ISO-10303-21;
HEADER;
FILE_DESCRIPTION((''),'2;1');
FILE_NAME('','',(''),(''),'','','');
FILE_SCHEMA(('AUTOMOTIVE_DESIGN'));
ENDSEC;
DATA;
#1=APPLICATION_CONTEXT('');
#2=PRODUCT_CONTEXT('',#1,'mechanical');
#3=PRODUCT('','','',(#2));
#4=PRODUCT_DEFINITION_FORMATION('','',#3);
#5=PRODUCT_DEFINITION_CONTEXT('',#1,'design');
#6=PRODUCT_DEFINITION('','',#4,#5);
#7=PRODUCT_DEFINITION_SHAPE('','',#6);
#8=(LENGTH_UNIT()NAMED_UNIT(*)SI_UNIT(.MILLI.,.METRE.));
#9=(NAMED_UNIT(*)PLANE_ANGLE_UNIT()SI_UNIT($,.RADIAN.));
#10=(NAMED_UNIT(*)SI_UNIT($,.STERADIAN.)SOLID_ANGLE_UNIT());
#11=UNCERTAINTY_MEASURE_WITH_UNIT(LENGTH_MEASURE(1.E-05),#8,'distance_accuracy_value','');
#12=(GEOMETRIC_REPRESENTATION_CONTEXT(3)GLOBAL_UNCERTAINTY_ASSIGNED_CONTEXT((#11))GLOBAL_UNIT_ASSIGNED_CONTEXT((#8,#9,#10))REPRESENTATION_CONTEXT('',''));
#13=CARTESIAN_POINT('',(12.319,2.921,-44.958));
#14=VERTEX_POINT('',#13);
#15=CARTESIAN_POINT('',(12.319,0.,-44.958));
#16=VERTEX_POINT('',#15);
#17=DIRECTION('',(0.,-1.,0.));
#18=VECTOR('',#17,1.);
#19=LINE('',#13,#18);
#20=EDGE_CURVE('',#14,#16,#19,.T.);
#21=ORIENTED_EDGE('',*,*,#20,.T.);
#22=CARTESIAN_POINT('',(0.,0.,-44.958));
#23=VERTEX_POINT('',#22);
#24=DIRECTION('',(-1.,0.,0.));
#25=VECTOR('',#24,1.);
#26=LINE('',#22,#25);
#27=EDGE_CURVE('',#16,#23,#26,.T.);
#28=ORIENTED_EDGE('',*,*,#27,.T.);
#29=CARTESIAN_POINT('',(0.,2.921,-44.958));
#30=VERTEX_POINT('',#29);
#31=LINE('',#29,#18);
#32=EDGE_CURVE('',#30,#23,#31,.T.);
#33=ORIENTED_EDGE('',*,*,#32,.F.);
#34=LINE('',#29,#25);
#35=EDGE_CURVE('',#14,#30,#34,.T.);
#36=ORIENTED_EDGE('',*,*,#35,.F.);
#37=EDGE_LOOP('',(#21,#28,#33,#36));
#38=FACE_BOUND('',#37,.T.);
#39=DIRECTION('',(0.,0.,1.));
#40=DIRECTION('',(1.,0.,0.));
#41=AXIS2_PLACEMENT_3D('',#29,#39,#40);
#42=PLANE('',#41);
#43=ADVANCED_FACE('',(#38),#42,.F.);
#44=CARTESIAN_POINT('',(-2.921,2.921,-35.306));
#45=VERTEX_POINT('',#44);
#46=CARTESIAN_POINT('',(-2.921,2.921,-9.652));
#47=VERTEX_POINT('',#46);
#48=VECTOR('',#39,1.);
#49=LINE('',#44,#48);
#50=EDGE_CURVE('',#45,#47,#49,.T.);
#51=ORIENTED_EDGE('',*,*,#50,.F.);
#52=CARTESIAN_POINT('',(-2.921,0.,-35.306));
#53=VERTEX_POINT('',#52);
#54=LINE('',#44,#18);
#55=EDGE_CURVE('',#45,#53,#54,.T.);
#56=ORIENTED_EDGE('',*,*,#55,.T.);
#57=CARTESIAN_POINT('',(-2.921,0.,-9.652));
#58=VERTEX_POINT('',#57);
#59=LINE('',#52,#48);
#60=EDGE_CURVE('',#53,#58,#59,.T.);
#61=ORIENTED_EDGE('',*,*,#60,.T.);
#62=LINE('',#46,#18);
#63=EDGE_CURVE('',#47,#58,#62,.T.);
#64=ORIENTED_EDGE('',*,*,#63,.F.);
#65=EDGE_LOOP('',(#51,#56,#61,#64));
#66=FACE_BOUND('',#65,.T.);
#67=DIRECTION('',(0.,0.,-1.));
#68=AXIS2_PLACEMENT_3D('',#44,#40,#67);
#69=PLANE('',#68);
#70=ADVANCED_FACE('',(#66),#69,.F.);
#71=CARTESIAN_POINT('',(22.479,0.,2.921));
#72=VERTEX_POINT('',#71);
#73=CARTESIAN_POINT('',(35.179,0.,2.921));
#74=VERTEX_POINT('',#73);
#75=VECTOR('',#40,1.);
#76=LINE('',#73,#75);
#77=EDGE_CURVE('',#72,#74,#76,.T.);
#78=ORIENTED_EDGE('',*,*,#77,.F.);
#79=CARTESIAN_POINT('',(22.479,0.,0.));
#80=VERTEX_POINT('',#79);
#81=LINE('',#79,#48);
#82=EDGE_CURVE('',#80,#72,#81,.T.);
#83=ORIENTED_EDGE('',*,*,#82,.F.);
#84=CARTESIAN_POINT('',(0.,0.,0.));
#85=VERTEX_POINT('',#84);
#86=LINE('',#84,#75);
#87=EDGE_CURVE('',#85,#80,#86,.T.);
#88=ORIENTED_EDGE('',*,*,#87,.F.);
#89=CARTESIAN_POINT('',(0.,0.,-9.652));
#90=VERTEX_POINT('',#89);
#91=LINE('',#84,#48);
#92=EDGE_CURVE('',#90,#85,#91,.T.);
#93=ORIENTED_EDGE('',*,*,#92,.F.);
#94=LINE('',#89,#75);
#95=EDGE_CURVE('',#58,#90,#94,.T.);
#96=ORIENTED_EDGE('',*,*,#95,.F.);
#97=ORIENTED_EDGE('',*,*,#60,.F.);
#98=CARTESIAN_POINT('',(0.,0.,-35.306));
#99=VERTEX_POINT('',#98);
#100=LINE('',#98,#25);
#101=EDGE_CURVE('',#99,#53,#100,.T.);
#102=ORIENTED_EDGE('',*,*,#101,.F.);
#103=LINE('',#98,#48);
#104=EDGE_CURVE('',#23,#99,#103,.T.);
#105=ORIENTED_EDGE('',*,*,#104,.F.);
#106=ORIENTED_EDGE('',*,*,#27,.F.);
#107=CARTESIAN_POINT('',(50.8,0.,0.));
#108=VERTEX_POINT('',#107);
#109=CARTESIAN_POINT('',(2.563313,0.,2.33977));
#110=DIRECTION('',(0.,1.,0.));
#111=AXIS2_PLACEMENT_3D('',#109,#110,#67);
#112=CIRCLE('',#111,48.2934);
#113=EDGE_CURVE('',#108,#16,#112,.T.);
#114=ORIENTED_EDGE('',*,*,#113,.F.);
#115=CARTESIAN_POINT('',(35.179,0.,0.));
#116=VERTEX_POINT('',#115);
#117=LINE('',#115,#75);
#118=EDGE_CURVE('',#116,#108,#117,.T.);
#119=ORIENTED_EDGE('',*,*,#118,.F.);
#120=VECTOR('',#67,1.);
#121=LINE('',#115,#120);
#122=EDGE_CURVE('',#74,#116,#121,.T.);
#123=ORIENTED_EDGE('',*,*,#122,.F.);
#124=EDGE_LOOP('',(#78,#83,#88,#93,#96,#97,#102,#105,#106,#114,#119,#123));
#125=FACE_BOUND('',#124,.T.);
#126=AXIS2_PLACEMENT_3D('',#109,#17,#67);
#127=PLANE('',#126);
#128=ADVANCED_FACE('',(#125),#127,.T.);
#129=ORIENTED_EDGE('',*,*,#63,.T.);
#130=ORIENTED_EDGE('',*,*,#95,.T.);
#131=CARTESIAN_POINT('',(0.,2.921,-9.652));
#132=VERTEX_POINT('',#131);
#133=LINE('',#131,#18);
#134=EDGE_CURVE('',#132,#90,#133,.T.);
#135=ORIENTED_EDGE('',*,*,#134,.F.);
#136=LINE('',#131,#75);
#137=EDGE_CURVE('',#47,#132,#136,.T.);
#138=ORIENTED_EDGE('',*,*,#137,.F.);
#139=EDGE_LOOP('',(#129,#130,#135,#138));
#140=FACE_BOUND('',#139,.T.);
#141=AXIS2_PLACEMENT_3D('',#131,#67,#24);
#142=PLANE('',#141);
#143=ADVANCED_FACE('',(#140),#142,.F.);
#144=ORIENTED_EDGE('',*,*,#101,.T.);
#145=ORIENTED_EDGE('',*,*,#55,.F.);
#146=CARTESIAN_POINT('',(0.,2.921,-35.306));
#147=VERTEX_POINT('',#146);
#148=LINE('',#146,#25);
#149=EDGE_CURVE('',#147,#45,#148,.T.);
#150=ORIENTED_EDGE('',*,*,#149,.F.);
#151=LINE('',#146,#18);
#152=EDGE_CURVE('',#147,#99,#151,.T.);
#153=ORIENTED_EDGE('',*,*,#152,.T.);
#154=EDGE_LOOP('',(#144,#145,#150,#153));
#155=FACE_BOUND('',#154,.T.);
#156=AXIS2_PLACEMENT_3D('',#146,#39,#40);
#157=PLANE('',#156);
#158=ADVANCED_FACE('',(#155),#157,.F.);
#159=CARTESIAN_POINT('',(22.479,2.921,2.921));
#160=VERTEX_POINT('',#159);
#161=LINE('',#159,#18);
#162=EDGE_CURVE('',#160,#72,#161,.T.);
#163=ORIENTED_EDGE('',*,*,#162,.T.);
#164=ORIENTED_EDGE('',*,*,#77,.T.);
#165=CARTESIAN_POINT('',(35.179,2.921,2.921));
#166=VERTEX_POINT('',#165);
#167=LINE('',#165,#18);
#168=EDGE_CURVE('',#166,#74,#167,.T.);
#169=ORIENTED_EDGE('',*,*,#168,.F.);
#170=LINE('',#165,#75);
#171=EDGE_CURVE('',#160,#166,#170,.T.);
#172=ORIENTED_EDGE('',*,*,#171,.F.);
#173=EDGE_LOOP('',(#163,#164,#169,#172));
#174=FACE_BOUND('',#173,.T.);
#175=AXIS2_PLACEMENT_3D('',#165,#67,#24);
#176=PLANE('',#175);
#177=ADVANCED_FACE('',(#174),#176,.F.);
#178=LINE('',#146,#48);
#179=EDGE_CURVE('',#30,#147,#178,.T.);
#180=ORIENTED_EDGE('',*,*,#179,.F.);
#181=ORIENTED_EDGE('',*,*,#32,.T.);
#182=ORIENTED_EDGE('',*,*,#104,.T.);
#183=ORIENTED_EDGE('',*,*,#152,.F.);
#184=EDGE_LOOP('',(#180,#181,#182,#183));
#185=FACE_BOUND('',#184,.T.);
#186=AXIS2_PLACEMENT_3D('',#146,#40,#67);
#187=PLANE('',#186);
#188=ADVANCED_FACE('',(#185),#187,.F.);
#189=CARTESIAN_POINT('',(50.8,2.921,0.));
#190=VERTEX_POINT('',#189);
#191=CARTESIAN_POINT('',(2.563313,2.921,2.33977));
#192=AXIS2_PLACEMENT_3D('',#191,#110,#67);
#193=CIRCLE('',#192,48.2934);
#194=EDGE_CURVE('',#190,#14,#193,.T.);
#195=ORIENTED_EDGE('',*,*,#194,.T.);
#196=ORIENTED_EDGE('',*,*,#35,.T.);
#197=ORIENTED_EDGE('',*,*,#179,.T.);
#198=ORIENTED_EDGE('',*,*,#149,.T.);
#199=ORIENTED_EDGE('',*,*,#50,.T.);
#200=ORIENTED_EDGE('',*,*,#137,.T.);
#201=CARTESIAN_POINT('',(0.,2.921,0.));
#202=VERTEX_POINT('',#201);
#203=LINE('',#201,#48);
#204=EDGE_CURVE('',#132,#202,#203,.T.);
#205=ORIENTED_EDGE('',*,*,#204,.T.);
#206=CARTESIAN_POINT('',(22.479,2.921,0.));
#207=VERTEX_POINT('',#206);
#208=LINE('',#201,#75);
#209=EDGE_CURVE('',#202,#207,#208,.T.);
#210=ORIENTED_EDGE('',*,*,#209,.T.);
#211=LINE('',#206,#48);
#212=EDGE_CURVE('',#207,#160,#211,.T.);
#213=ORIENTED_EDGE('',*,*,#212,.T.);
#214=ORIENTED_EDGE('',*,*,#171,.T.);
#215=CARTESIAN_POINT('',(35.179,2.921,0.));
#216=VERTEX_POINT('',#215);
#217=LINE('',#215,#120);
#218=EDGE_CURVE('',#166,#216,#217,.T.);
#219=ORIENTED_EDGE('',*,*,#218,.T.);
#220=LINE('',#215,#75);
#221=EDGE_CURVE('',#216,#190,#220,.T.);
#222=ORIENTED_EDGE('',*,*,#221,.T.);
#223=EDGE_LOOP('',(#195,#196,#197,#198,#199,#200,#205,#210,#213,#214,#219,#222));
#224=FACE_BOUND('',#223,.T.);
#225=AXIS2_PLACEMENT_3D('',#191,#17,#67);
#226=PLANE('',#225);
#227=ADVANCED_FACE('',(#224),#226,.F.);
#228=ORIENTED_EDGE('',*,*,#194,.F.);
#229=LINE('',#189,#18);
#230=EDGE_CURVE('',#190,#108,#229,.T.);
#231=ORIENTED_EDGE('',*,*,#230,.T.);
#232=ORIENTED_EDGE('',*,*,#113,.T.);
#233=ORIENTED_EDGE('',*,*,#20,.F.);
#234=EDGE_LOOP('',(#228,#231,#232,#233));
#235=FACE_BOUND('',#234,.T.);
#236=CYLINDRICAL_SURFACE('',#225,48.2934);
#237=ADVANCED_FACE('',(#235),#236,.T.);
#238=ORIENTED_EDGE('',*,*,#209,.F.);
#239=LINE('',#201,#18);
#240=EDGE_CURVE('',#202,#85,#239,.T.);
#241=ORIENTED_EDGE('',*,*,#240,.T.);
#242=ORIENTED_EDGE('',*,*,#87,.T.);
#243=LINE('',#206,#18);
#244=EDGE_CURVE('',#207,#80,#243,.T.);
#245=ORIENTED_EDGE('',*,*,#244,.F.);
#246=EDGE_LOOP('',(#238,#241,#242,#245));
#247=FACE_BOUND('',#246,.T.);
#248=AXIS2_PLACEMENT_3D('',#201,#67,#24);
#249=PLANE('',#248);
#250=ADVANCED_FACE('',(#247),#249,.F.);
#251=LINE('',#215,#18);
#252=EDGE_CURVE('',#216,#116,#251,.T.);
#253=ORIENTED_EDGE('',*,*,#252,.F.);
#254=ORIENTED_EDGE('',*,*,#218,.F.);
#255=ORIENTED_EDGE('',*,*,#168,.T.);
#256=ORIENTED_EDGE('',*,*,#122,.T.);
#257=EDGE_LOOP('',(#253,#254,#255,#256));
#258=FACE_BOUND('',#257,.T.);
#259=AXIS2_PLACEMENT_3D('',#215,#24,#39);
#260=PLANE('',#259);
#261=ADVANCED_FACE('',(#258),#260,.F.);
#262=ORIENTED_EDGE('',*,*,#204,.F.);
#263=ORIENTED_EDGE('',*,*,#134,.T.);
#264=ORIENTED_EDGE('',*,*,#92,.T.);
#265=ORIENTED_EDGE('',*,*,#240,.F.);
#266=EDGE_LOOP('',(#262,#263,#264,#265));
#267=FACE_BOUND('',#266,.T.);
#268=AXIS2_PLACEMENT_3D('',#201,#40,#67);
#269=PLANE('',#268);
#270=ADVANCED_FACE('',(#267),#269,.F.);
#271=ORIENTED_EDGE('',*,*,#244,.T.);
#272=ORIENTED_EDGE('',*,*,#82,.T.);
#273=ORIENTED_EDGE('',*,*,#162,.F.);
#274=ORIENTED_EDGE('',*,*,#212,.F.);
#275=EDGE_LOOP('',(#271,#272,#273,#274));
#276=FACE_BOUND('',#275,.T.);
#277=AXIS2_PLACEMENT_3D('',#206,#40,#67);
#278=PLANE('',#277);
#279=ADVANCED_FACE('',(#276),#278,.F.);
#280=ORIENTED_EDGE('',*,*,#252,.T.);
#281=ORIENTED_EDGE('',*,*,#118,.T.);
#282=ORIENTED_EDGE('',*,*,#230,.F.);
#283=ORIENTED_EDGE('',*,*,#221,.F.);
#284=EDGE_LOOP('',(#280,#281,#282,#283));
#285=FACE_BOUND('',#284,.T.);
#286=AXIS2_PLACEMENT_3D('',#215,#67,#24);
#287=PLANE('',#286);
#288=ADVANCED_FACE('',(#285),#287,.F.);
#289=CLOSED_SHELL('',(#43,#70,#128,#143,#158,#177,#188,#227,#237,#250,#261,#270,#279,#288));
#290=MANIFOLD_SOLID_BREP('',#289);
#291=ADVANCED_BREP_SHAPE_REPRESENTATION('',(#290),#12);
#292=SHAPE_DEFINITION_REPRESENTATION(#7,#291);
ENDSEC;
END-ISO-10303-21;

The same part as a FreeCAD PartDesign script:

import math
import FreeCAD as App
import Part
import Sketcher

V = App.Vector
Q = App.Units.Quantity

doc = App.newDocument("Part")
body = doc.addObject("PartDesign::Body", "Body")

# Sketch on XZ plane
sketch1 = body.newObject("Sketcher::SketchObject", "Sketch")
sketch1.AttachmentSupport = (doc.getObject("XZ_Plane"), [""])
sketch1.MapMode = "FlatFace"
sketch1.addGeometry([
    Part.LineSegment(V(35.2, 0, 0), V(50.8, 0, 0)),  # 0
    Part.ArcOfCircle(Part.Circle(V(2.6, 2.3, 0), V(0, 0, 1), 48.3), math.radians(-78), math.radians(-3)),  # 1
    Part.LineSegment(V(12.3, -45, 0), V(0, -45, 0)),  # 2
    Part.LineSegment(V(0, -45, 0), V(0, -35.3, 0)),  # 3
    Part.LineSegment(V(0, -35.3, 0), V(-2.9, -35.3, 0)),  # 4
    Part.LineSegment(V(-2.9, -35.3, 0), V(-2.9, -9.7, 0)),  # 5
    Part.LineSegment(V(-2.9, -9.7, 0), V(0, -9.7, 0)),  # 6
    Part.LineSegment(V(0, -9.7, 0), V(0, 0, 0)),  # 7
    Part.LineSegment(V(0, 0, 0), V(22.5, 0, 0)),  # 8
    Part.LineSegment(V(22.5, 0, 0), V(22.5, 2.9, 0)),  # 9
    Part.LineSegment(V(22.5, 2.9, 0), V(35.2, 2.9, 0)),  # 10
    Part.LineSegment(V(35.2, 2.9, 0), V(35.2, 0, 0)),  # 11
], False)
sketch1.addConstraint([
    Sketcher.Constraint("Coincident", 0, 2, 1, 2),
    Sketcher.Constraint("Coincident", 1, 1, 2, 1),
    Sketcher.Constraint("Coincident", 2, 2, 3, 1),
    Sketcher.Constraint("Coincident", 3, 2, 4, 1),
    Sketcher.Constraint("Coincident", 4, 2, 5, 1),
    Sketcher.Constraint("Coincident", 5, 2, 6, 1),
    Sketcher.Constraint("Coincident", 6, 2, 7, 1),
    Sketcher.Constraint("Coincident", 7, 2, 8, 1),
    Sketcher.Constraint("Coincident", 8, 2, 9, 1),
    Sketcher.Constraint("Coincident", 9, 2, 10, 1),
    Sketcher.Constraint("Coincident", 10, 2, 11, 1),
    Sketcher.Constraint("Coincident", 11, 2, 0, 1),
    Sketcher.Constraint("Horizontal", 0),
    Sketcher.Constraint("Horizontal", 2),
    Sketcher.Constraint("Vertical", 3),
    Sketcher.Constraint("Horizontal", 4),
    Sketcher.Constraint("Vertical", 5),
    Sketcher.Constraint("Horizontal", 6),
    Sketcher.Constraint("Vertical", 7),
    Sketcher.Constraint("Horizontal", 8),
    Sketcher.Constraint("Vertical", 9),
    Sketcher.Constraint("Horizontal", 10),
    Sketcher.Constraint("Vertical", 11),
    Sketcher.Constraint("Coincident", 7, 2, -1, 1),
    Sketcher.Constraint("PointOnObject", 0, 2, -1),
    Sketcher.Constraint("PointOnObject", 2, 2, -2),
    Sketcher.Constraint("Equal", 3, 7),
    Sketcher.Constraint("Equal", 6, 9),
    Sketcher.Constraint("DistanceX", 10, 1, 10, 2, Q("0.5 in")),
    Sketcher.Constraint("DistanceX", -1, 1, 0, 2, Q("2 in")),
    Sketcher.Constraint("DistanceX", 5, 2, 8, 2, Q("1 in")),
    Sketcher.Constraint("DistanceY", 3, 1, 3, 2, Q("0.38 in")),
    Sketcher.Constraint("DistanceY", 5, 1, 5, 2, Q("1.01 in")),
    Sketcher.Constraint("DistanceX", 4, 2, 1, 1, Q("0.6 in")),
    Sketcher.Constraint("DistanceX", 0, 1, 0, 2, Q("0.615 in")),
    Sketcher.Constraint("Radius", 1, Q("48.2934 mm")),
])
pad1 = body.newObject("PartDesign::Pad", "Pad")
pad1.Profile = sketch1
pad1.Length = Q("0.115 in")
pad1.Reversed = True

doc.recompute()
